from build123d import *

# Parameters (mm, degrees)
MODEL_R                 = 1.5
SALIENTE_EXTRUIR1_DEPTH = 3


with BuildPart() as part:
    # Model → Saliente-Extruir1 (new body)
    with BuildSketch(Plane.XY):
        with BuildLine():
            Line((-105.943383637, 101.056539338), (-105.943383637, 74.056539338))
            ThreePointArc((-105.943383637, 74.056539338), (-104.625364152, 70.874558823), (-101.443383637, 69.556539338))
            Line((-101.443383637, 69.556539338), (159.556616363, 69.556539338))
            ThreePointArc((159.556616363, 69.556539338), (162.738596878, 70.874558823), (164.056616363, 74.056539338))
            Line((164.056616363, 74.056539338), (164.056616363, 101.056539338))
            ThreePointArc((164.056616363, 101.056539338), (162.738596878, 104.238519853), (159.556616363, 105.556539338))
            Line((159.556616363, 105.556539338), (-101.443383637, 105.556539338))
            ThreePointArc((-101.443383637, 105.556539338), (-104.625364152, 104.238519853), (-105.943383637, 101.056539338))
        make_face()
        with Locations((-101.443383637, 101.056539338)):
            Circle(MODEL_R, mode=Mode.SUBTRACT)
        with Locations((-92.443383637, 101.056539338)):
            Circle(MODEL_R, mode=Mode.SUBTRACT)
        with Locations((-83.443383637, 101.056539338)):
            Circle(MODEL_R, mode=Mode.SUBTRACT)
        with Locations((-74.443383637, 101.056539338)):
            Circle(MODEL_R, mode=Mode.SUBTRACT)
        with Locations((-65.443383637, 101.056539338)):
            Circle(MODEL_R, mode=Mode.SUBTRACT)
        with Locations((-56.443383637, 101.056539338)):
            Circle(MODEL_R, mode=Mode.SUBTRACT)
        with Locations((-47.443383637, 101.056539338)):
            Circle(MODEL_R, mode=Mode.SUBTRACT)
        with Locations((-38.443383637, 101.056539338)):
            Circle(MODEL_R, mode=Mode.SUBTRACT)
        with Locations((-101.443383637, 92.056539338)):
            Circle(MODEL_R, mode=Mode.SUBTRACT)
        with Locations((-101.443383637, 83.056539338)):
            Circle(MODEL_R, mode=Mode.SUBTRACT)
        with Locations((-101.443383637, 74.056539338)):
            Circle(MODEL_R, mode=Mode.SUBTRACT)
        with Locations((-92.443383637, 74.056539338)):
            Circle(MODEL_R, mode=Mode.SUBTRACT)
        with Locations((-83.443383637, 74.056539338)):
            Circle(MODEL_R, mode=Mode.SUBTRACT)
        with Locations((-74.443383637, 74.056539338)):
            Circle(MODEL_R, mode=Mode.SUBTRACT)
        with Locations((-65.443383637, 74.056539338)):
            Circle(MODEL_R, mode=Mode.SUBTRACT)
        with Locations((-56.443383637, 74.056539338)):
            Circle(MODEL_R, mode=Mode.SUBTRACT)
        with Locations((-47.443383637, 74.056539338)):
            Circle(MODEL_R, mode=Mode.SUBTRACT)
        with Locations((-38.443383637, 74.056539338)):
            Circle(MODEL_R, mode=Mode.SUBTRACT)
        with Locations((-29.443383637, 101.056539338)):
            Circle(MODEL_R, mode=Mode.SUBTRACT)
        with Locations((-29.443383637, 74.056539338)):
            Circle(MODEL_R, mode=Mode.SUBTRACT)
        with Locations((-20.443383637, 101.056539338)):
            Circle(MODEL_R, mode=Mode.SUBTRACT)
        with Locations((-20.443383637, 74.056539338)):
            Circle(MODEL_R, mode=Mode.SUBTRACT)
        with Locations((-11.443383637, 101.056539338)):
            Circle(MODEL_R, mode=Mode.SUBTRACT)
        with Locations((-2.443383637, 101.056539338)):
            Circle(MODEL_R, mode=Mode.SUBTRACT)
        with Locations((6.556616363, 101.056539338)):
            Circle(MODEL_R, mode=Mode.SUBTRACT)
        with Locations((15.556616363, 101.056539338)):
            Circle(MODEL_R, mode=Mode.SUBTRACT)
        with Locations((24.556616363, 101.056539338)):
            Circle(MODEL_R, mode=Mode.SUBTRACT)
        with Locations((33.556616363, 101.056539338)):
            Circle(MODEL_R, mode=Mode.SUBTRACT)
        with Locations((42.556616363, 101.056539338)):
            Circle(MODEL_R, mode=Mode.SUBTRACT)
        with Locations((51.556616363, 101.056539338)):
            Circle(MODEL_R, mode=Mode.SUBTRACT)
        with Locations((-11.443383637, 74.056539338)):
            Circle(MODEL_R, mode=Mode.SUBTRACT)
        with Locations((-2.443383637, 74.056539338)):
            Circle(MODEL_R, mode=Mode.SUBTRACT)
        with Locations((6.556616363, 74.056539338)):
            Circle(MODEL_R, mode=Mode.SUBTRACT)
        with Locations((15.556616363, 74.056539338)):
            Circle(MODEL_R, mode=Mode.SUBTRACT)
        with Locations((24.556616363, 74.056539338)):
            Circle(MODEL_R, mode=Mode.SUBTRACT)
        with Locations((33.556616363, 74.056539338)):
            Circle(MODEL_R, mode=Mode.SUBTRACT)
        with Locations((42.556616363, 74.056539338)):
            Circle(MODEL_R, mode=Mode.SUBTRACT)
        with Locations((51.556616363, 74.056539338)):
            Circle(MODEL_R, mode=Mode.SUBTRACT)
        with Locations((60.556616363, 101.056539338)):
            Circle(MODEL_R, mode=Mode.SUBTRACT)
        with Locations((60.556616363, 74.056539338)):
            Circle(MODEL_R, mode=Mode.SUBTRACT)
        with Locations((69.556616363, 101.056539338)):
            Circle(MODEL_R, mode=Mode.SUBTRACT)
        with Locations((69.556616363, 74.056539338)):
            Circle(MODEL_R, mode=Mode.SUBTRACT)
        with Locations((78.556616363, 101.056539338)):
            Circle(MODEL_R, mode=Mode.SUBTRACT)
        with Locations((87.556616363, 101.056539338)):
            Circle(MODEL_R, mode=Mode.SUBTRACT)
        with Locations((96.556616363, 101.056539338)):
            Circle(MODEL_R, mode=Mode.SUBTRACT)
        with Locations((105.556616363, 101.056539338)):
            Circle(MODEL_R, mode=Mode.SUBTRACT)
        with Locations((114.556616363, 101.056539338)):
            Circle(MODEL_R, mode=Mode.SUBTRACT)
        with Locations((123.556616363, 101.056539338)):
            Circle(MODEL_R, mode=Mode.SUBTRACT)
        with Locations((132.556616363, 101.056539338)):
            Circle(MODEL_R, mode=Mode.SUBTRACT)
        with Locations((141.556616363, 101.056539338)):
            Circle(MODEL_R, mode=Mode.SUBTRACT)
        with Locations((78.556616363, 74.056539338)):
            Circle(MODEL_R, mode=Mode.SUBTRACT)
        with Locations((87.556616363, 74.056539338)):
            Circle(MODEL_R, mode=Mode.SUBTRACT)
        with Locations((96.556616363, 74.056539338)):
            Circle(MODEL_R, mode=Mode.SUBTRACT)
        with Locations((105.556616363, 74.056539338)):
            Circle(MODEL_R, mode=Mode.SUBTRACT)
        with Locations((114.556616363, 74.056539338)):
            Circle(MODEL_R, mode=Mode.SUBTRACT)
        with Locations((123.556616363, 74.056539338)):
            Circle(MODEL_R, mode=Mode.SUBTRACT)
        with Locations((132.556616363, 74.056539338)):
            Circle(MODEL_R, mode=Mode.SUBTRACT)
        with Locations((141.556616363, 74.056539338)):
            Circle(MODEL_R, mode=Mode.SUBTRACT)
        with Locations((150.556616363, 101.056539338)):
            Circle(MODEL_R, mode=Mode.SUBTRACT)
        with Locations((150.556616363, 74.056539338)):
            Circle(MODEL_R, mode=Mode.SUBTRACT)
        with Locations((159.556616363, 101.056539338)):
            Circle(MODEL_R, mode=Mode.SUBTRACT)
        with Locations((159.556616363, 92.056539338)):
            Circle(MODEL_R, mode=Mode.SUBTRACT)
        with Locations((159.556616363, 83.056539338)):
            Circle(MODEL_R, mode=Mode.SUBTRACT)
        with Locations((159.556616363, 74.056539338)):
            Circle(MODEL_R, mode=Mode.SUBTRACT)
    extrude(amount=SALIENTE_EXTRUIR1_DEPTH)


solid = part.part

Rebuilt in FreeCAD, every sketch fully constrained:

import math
import FreeCAD as App
import Part
import Sketcher
from FreeCAD import Vector
Q = App.Units.Quantity

doc = App.newDocument("Part")
body = doc.addObject("PartDesign::Body", "Body")

sketch1 = body.newObject("Sketcher::SketchObject", "Sketch")
sketch1.AttachmentSupport = (doc.getObject("XY_Plane"), [""])
sketch1.MapMode = "FlatFace"
sketch1.addGeometry([
    Part.LineSegment(Vector(-105.943384, 101.056539, 0), Vector(-105.943384, 74.056539, 0)),
    Part.ArcOfCircle(Part.Circle(Vector(-101.443384, 74.056539, 0), Vector(0, 0, 1), 4.5), math.radians(-180), math.radians(-90)),
    Part.LineSegment(Vector(-101.443384, 69.556539, 0), Vector(159.556616, 69.556539, 0)),
    Part.ArcOfCircle(Part.Circle(Vector(159.556616, 74.056539, 0), Vector(0, 0, 1), 4.5), math.radians(-90), math.radians(0)),
    Part.LineSegment(Vector(164.056616, 74.056539, 0), Vector(164.056616, 101.056539, 0)),
    Part.ArcOfCircle(Part.Circle(Vector(159.556616, 101.056539, 0), Vector(0, 0, 1), 4.5), math.radians(0), math.radians(90)),
    Part.LineSegment(Vector(159.556616, 105.556539, 0), Vector(-101.443384, 105.556539, 0)),
    Part.ArcOfCircle(Part.Circle(Vector(-101.443384, 101.056539, 0), Vector(0, 0, 1), 4.5), math.radians(90), math.radians(180)),
    Part.Circle(Vector(-101.443384, 74.056539, 0), Vector(0, 0, 1), 1.5),
    Part.Circle(Vector(-92.443384, 74.056539, 0), Vector(0, 0, 1), 1.5),
    Part.Circle(Vector(-83.443384, 74.056539, 0), Vector(0, 0, 1), 1.5),
    Part.Circle(Vector(-74.443384, 74.056539, 0), Vector(0, 0, 1), 1.5),
    Part.Circle(Vector(-65.443384, 74.056539, 0), Vector(0, 0, 1), 1.5),
    Part.Circle(Vector(-56.443384, 74.056539, 0), Vector(0, 0, 1), 1.5),
    Part.Circle(Vector(-47.443384, 74.056539, 0), Vector(0, 0, 1), 1.5),
    Part.Circle(Vector(-38.443384, 74.056539, 0), Vector(0, 0, 1), 1.5),
    Part.Circle(Vector(-29.443384, 74.056539, 0), Vector(0, 0, 1), 1.5),
    Part.Circle(Vector(-20.443384, 74.056539, 0), Vector(0, 0, 1), 1.5),
    Part.Circle(Vector(-11.443384, 74.056539, 0), Vector(0, 0, 1), 1.5),
    Part.Circle(Vector(-2.443384, 74.056539, 0), Vector(0, 0, 1), 1.5),
    Part.Circle(Vector(6.556616, 74.056539, 0), Vector(0, 0, 1), 1.5),
    Part.Circle(Vector(15.556616, 74.056539, 0), Vector(0, 0, 1), 1.5),
    Part.Circle(Vector(24.556616, 74.056539, 0), Vector(0, 0, 1), 1.5),
    Part.Circle(Vector(-101.443384, 83.056539, 0), Vector(0, 0, 1), 1.5),
    Part.Circle(Vector(33.556616, 74.056539, 0), Vector(0, 0, 1), 1.5),
    Part.Circle(Vector(42.556616, 74.056539, 0), Vector(0, 0, 1), 1.5),
    Part.Circle(Vector(51.556616, 74.056539, 0), Vector(0, 0, 1), 1.5),
    Part.Circle(Vector(60.556616, 74.056539, 0), Vector(0, 0, 1), 1.5),
    Part.Circle(Vector(69.556616, 74.056539, 0), Vector(0, 0, 1), 1.5),
    Part.Circle(Vector(78.556616, 74.056539, 0), Vector(0, 0, 1), 1.5),
    Part.Circle(Vector(87.556616, 74.056539, 0), Vector(0, 0, 1), 1.5),
    Part.Circle(Vector(96.556616, 74.056539, 0), Vector(0, 0, 1), 1.5),
    Part.Circle(Vector(105.556616, 74.056539, 0), Vector(0, 0, 1), 1.5),
    Part.Circle(Vector(114.556616, 74.056539, 0), Vector(0, 0, 1), 1.5),
    Part.Circle(Vector(123.556616, 74.056539, 0), Vector(0, 0, 1), 1.5),
    Part.Circle(Vector(132.556616, 74.056539, 0), Vector(0, 0, 1), 1.5),
    Part.Circle(Vector(141.556616, 74.056539, 0), Vector(0, 0, 1), 1.5),
    Part.Circle(Vector(150.556616, 74.056539, 0), Vector(0, 0, 1), 1.5),
    Part.Circle(Vector(159.556616, 74.056539, 0), Vector(0, 0, 1), 1.5),
    Part.Circle(Vector(159.556616, 83.056539, 0), Vector(0, 0, 1), 1.5),
    Part.Circle(Vector(-101.443384, 92.056539, 0), Vector(0, 0, 1), 1.5),
    Part.Circle(Vector(-101.443384, 101.056539, 0), Vector(0, 0, 1), 1.5),
    Part.Circle(Vector(-92.443384, 101.056539, 0), Vector(0, 0, 1), 1.5),
    Part.Circle(Vector(-83.443384, 101.056539, 0), Vector(0, 0, 1), 1.5),
    Part.Circle(Vector(-74.443384, 101.056539, 0), Vector(0, 0, 1), 1.5),
    Part.Circle(Vector(-65.443384, 101.056539, 0), Vector(0, 0, 1), 1.5),
    Part.Circle(Vector(-56.443384, 101.056539, 0), Vector(0, 0, 1), 1.5),
    Part.Circle(Vector(-47.443384, 101.056539, 0), Vector(0, 0, 1), 1.5),
    Part.Circle(Vector(-38.443384, 101.056539, 0), Vector(0, 0, 1), 1.5),
    Part.Circle(Vector(-29.443384, 101.056539, 0), Vector(0, 0, 1), 1.5),
    Part.Circle(Vector(-20.443384, 101.056539, 0), Vector(0, 0, 1), 1.5),
    Part.Circle(Vector(-11.443384, 101.056539, 0), Vector(0, 0, 1), 1.5),
    Part.Circle(Vector(-2.443384, 101.056539, 0), Vector(0, 0, 1), 1.5),
    Part.Circle(Vector(6.556616, 101.056539, 0), Vector(0, 0, 1), 1.5),
    Part.Circle(Vector(15.556616, 101.056539, 0), Vector(0, 0, 1), 1.5),
    Part.Circle(Vector(24.556616, 101.056539, 0), Vector(0, 0, 1), 1.5),
    Part.Circle(Vector(159.556616, 92.056539, 0), Vector(0, 0, 1), 1.5),
    Part.Circle(Vector(33.556616, 101.056539, 0), Vector(0, 0, 1), 1.5),
    Part.Circle(Vector(42.556616, 101.056539, 0), Vector(0, 0, 1), 1.5),
    Part.Circle(Vector(51.556616, 101.056539, 0), Vector(0, 0, 1), 1.5),
    Part.Circle(Vector(60.556616, 101.056539, 0), Vector(0, 0, 1), 1.5),
    Part.Circle(Vector(69.556616, 101.056539, 0), Vector(0, 0, 1), 1.5),
    Part.Circle(Vector(78.556616, 101.056539, 0), Vector(0, 0, 1), 1.5),
    Part.Circle(Vector(87.556616, 101.056539, 0), Vector(0, 0, 1), 1.5),
    Part.Circle(Vector(96.556616, 101.056539, 0), Vector(0, 0, 1), 1.5),
    Part.Circle(Vector(105.556616, 101.056539, 0), Vector(0, 0, 1), 1.5),
    Part.Circle(Vector(114.556616, 101.056539, 0), Vector(0, 0, 1), 1.5),
    Part.Circle(Vector(123.556616, 101.056539, 0), Vector(0, 0, 1), 1.5),
    Part.Circle(Vector(132.556616, 101.056539, 0), Vector(0, 0, 1), 1.5),
    Part.Circle(Vector(141.556616, 101.056539, 0), Vector(0, 0, 1), 1.5),
    Part.Circle(Vector(150.556616, 101.056539, 0), Vector(0, 0, 1), 1.5),
    Part.Circle(Vector(159.556616, 101.056539, 0), Vector(0, 0, 1), 1.5),
], False)
sketch1.addConstraint([
    Sketcher.Constraint("Tangent", 0, 2, 1, 1),
    Sketcher.Constraint("Tangent", 1, 2, 2, 1),
    Sketcher.Constraint("Tangent", 2, 2, 3, 1),
    Sketcher.Constraint("Tangent", 3, 2, 4, 1),
    Sketcher.Constraint("Tangent", 4, 2, 5, 1),
    Sketcher.Constraint("Tangent", 5, 2, 6, 1),
    Sketcher.Constraint("Tangent", 6, 2, 7, 1),
    Sketcher.Constraint("Tangent", 7, 2, 0, 1),
    Sketcher.Constraint("Vertical", 0),
    Sketcher.Constraint("Horizontal", 2),
    Sketcher.Constraint("Vertical", 4),
    Sketcher.Constraint("Horizontal", 6),
    Sketcher.Constraint("Coincident", 8, 3, 1, 3),
    Sketcher.Constraint("Coincident", 38, 3, 3, 3),
    Sketcher.Constraint("Coincident", 41, 3, 7, 3),
    Sketcher.Constraint("Coincident", 71, 3, 5, 3),
    Sketcher.Constraint("Equal", 1, 3),
    Sketcher.Constraint("Equal", 3, 5),
    Sketcher.Constraint("Equal", 5, 7),
    Sketcher.Constraint("Equal", 8, 9),
    Sketcher.Constraint("Equal", 9, 10),
    Sketcher.Constraint("Equal", 10, 11),
    Sketcher.Constraint("Equal", 11, 12),
    Sketcher.Constraint("Equal", 12, 13),
    Sketcher.Constraint("Equal", 13, 14),
    Sketcher.Constraint("Equal", 14, 15),
    Sketcher.Constraint("Equal", 15, 16),
    Sketcher.Constraint("Equal", 16, 17),
    Sketcher.Constraint("Equal", 17, 18),
    Sketcher.Constraint("Equal", 18, 19),
    Sketcher.Constraint("Equal", 19, 20),
    Sketcher.Constraint("Equal", 20, 21),
    Sketcher.Constraint("Equal", 21, 22),
    Sketcher.Constraint("Equal", 22, 23),
    Sketcher.Constraint("Equal", 23, 24),
    Sketcher.Constraint("Equal", 24, 25),
    Sketcher.Constraint("Equal", 25, 26),
    Sketcher.Constraint("Equal", 26, 27),
    Sketcher.Constraint("Equal", 27, 28),
    Sketcher.Constraint("Equal", 28, 29),
    Sketcher.Constraint("Equal", 29, 30),
    Sketcher.Constraint("Equal", 30, 31),
    Sketcher.Constraint("Equal", 31, 32),
    Sketcher.Constraint("Equal", 32, 33),
    Sketcher.Constraint("Equal", 33, 34),
    Sketcher.Constraint("Equal", 34, 35),
    Sketcher.Constraint("Equal", 35, 36),
    Sketcher.Constraint("Equal", 36, 37),
    Sketcher.Constraint("Equal", 37, 38),
    Sketcher.Constraint("Equal", 38, 39),
    Sketcher.Constraint("Equal", 39, 40),
    Sketcher.Constraint("Equal", 40, 41),
    Sketcher.Constraint("Equal", 41, 42),
    Sketcher.Constraint("Equal", 42, 43),
    Sketcher.Constraint("Equal", 43, 44),
    Sketcher.Constraint("Equal", 44, 45),
    Sketcher.Constraint("Equal", 45, 46),
    Sketcher.Constraint("Equal", 46, 47),
    Sketcher.Constraint("Equal", 47, 48),
    Sketcher.Constraint("Equal", 48, 49),
    Sketcher.Constraint("Equal", 49, 50),
    Sketcher.Constraint("Equal", 50, 51),
    Sketcher.Constraint("Equal", 51, 52),
    Sketcher.Constraint("Equal", 52, 53),
    Sketcher.Constraint("Equal", 53, 54),
    Sketcher.Constraint("Equal", 54, 55),
    Sketcher.Constraint("Equal", 55, 56),
    Sketcher.Constraint("Equal", 56, 57),
    Sketcher.Constraint("Equal", 57, 58),
    Sketcher.Constraint("Equal", 58, 59),
    Sketcher.Constraint("Equal", 59, 60),
    Sketcher.Constraint("Equal", 60, 61),
    Sketcher.Constraint("Equal", 61, 62),
    Sketcher.Constraint("Equal", 62, 63),
    Sketcher.Constraint("Equal", 63, 64),
    Sketcher.Constraint("Equal", 64, 65),
    Sketcher.Constraint("Equal", 65, 66),
    Sketcher.Constraint("Equal", 66, 67),
    Sketcher.Constraint("Equal", 67, 68),
    Sketcher.Constraint("Equal", 68, 69),
    Sketcher.Constraint("Equal", 69, 70),
    Sketcher.Constraint("Equal", 70, 71),
    Sketcher.Constraint("Horizontal", 8, 3, 9, 3),
    Sketcher.Constraint("Horizontal", 9, 3, 10, 3),
    Sketcher.Constraint("Horizontal", 10, 3, 11, 3),
    Sketcher.Constraint("Horizontal", 11, 3, 12, 3),
    Sketcher.Constraint("Horizontal", 12, 3, 13, 3),
    Sketcher.Constraint("Horizontal", 13, 3, 14, 3),
    Sketcher.Constraint("Horizontal", 14, 3, 15, 3),
    Sketcher.Constraint("Horizontal", 15, 3, 16, 3),
    Sketcher.Constraint("Horizontal", 16, 3, 17, 3),
    Sketcher.Constraint("Horizontal", 17, 3, 18, 3),
    Sketcher.Constraint("Horizontal", 18, 3, 19, 3),
    Sketcher.Constraint("Horizontal", 19, 3, 20, 3),
    Sketcher.Constraint("Horizontal", 20, 3, 21, 3),
    Sketcher.Constraint("Horizontal", 21, 3, 22, 3),
    Sketcher.Constraint("Horizontal", 22, 3, 24, 3),
    Sketcher.Constraint("Horizontal", 24, 3, 25, 3),
    Sketcher.Constraint("Horizontal", 25, 3, 26, 3),
    Sketcher.Constraint("Horizontal", 26, 3, 27, 3),
    Sketcher.Constraint("Horizontal", 27, 3, 28, 3),
    Sketcher.Constraint("Horizontal", 28, 3, 29, 3),
    Sketcher.Constraint("Horizontal", 29, 3, 30, 3),
    Sketcher.Constraint("Horizontal", 30, 3, 31, 3),
    Sketcher.Constraint("Horizontal", 31, 3, 32, 3),
    Sketcher.Constraint("Horizontal", 32, 3, 33, 3),
    Sketcher.Constraint("Horizontal", 33, 3, 34, 3),
    Sketcher.Constraint("Horizontal", 34, 3, 35, 3),
    Sketcher.Constraint("Horizontal", 35, 3, 36, 3),
    Sketcher.Constraint("Horizontal", 36, 3, 37, 3),
    Sketcher.Constraint("Horizontal", 23, 3, 39, 3),
    Sketcher.Constraint("Horizontal", 41, 3, 42, 3),
    Sketcher.Constraint("Horizontal", 42, 3, 43, 3),
    Sketcher.Constraint("Horizontal", 43, 3, 44, 3),
    Sketcher.Constraint("Horizontal", 44, 3, 45, 3),
    Sketcher.Constraint("Horizontal", 45, 3, 46, 3),
    Sketcher.Constraint("Horizontal", 46, 3, 47, 3),
    Sketcher.Constraint("Horizontal", 47, 3, 48, 3),
    Sketcher.Constraint("Horizontal", 48, 3, 49, 3),
    Sketcher.Constraint("Horizontal", 49, 3, 50, 3),
    Sketcher.Constraint("Horizontal", 50, 3, 51, 3),
    Sketcher.Constraint("Horizontal", 51, 3, 52, 3),
    Sketcher.Constraint("Horizontal", 52, 3, 53, 3),
    Sketcher.Constraint("Horizontal", 53, 3, 54, 3),
    Sketcher.Constraint("Horizontal", 54, 3, 55, 3),
    Sketcher.Constraint("Horizontal", 40, 3, 56, 3),
    Sketcher.Constraint("Horizontal", 55, 3, 57, 3),
    Sketcher.Constraint("Horizontal", 57, 3, 58, 3),
    Sketcher.Constraint("Horizontal", 58, 3, 59, 3),
    Sketcher.Constraint("Horizontal", 59, 3, 60, 3),
    Sketcher.Constraint("Horizontal", 60, 3, 61, 3),
    Sketcher.Constraint("Horizontal", 61, 3, 62, 3),
    Sketcher.Constraint("Horizontal", 62, 3, 63, 3),
    Sketcher.Constraint("Horizontal", 63, 3, 64, 3),
    Sketcher.Constraint("Horizontal", 64, 3, 65, 3),
    Sketcher.Constraint("Horizontal", 65, 3, 66, 3),
    Sketcher.Constraint("Horizontal", 66, 3, 67, 3),
    Sketcher.Constraint("Horizontal", 67, 3, 68, 3),
    Sketcher.Constraint("Horizontal", 68, 3, 69, 3),
    Sketcher.Constraint("Horizontal", 69, 3, 70, 3),
    Sketcher.Constraint("Vertical", 8, 3, 23, 3),
    Sketcher.Constraint("Vertical", 38, 3, 39, 3),
    Sketcher.Constraint("Vertical", 23, 3, 40, 3),
    Sketcher.Constraint("Vertical", 9, 3, 42, 3),
    Sketcher.Constraint("Vertical", 10, 3, 43, 3),
    Sketcher.Constraint("Vertical", 11, 3, 44, 3),
    Sketcher.Constraint("Vertical", 12, 3, 45, 3),
    Sketcher.Constraint("Vertical", 13, 3, 46, 3),
    Sketcher.Constraint("Vertical", 14, 3, 47, 3),
    Sketcher.Constraint("Vertical", 15, 3, 48, 3),
    Sketcher.Constraint("Vertical", 16, 3, 49, 3),
    Sketcher.Constraint("Vertical", 17, 3, 50, 3),
    Sketcher.Constraint("Vertical", 18, 3, 51, 3),
    Sketcher.Constraint("Vertical", 19, 3, 52, 3),
    Sketcher.Constraint("Vertical", 20, 3, 53, 3),
    Sketcher.Constraint("Vertical", 21, 3, 54, 3),
    Sketcher.Constraint("Vertical", 22, 3, 55, 3),
    Sketcher.Constraint("Vertical", 39, 3, 56, 3),
    Sketcher.Constraint("Vertical", 24, 3, 57, 3),
    Sketcher.Constraint("Vertical", 25, 3, 58, 3),
    Sketcher.Constraint("Vertical", 26, 3, 59, 3),
    Sketcher.Constraint("Vertical", 27, 3, 60, 3),
    Sketcher.Constraint("Vertical", 28, 3, 61, 3),
    Sketcher.Constraint("Vertical", 29, 3, 62, 3),
    Sketcher.Constraint("Vertical", 30, 3, 63, 3),
    Sketcher.Constraint("Vertical", 31, 3, 64, 3),
    Sketcher.Constraint("Vertical", 32, 3, 65, 3),
    Sketcher.Constraint("Vertical", 33, 3, 66, 3),
    Sketcher.Constraint("Vertical", 34, 3, 67, 3),
    Sketcher.Constraint("Vertical", 35, 3, 68, 3),
    Sketcher.Constraint("Vertical", 36, 3, 69, 3),
    Sketcher.Constraint("Vertical", 37, 3, 70, 3),
    Sketcher.Constraint("Diameter", 8, Q("3 mm")),
    Sketcher.Constraint("Radius", 1, Q("4.5 mm")),
    Sketcher.Constraint("DistanceX", 2, 1, 2, 2, Q("261 mm")),
    Sketcher.Constraint("DistanceY", 0, 2, 0, 1, Q("27 mm")),
    Sketcher.Constraint("DistanceY", -1, 1, 1, 3, Q("74.056539 mm")),
    Sketcher.Constraint("DistanceY", -1, 1, 23, 3, Q("83.056539 mm")),
    Sketcher.Constraint("DistanceY", -1, 1, 40, 3, Q("92.056539 mm")),
    Sketcher.Constraint("DistanceX", 1, 3, -1, 1, Q("101.443384 mm")),
    Sketcher.Constraint("DistanceX", 9, 3, -1, 1, Q("92.443384 mm")),
    Sketcher.Constraint("DistanceX", 10, 3, -1, 1, Q("83.443384 mm")),
    Sketcher.Constraint("DistanceX", 11, 3, -1, 1, Q("74.443384 mm")),
    Sketcher.Constraint("DistanceX", 12, 3, -1, 1, Q("65.443384 mm")),
    Sketcher.Constraint("DistanceX", 13, 3, -1, 1, Q("56.443384 mm")),
    Sketcher.Constraint("DistanceX", 14, 3, -1, 1, Q("47.443384 mm")),
    Sketcher.Constraint("DistanceX", 15, 3, -1, 1, Q("38.443384 mm")),
    Sketcher.Constraint("DistanceX", 16, 3, -1, 1, Q("29.443384 mm")),
    Sketcher.Constraint("DistanceX", 17, 3, -1, 1, Q("20.443384 mm")),
    Sketcher.Constraint("DistanceX", 18, 3, -1, 1, Q("11.443384 mm")),
    Sketcher.Constraint("DistanceX", 19, 3, -1, 1, Q("2.443384 mm")),
    Sketcher.Constraint("DistanceX", -1, 1, 20, 3, Q("6.556616 mm")),
    Sketcher.Constraint("DistanceX", -1, 1, 21, 3, Q("15.556616 mm")),
    Sketcher.Constraint("DistanceX", -1, 1, 22, 3, Q("24.556616 mm")),
    Sketcher.Constraint("DistanceX", -1, 1, 24, 3, Q("33.556616 mm")),
    Sketcher.Constraint("DistanceX", -1, 1, 25, 3, Q("42.556616 mm")),
    Sketcher.Constraint("DistanceX", -1, 1, 26, 3, Q("51.556616 mm")),
    Sketcher.Constraint("DistanceX", -1, 1, 27, 3, Q("60.556616 mm")),
    Sketcher.Constraint("DistanceX", -1, 1, 28, 3, Q("69.556616 mm")),
    Sketcher.Constraint("DistanceX", -1, 1, 29, 3, Q("78.556616 mm")),
    Sketcher.Constraint("DistanceX", -1, 1, 30, 3, Q("87.556616 mm")),
    Sketcher.Constraint("DistanceX", -1, 1, 31, 3, Q("96.556616 mm")),
    Sketcher.Constraint("DistanceX", -1, 1, 32, 3, Q("105.556616 mm")),
    Sketcher.Constraint("DistanceX", -1, 1, 33, 3, Q("114.556616 mm")),
    Sketcher.Constraint("DistanceX", -1, 1, 34, 3, Q("123.556616 mm")),
    Sketcher.Constraint("DistanceX", -1, 1, 35, 3, Q("132.556616 mm")),
    Sketcher.Constraint("DistanceX", -1, 1, 36, 3, Q("141.556616 mm")),
    Sketcher.Constraint("DistanceX", -1, 1, 37, 3, Q("150.556616 mm")),
])
pad1 = body.newObject("PartDesign::Pad", "Pad")
pad1.Profile = sketch1
pad1.Length = 3

doc.recompute()
